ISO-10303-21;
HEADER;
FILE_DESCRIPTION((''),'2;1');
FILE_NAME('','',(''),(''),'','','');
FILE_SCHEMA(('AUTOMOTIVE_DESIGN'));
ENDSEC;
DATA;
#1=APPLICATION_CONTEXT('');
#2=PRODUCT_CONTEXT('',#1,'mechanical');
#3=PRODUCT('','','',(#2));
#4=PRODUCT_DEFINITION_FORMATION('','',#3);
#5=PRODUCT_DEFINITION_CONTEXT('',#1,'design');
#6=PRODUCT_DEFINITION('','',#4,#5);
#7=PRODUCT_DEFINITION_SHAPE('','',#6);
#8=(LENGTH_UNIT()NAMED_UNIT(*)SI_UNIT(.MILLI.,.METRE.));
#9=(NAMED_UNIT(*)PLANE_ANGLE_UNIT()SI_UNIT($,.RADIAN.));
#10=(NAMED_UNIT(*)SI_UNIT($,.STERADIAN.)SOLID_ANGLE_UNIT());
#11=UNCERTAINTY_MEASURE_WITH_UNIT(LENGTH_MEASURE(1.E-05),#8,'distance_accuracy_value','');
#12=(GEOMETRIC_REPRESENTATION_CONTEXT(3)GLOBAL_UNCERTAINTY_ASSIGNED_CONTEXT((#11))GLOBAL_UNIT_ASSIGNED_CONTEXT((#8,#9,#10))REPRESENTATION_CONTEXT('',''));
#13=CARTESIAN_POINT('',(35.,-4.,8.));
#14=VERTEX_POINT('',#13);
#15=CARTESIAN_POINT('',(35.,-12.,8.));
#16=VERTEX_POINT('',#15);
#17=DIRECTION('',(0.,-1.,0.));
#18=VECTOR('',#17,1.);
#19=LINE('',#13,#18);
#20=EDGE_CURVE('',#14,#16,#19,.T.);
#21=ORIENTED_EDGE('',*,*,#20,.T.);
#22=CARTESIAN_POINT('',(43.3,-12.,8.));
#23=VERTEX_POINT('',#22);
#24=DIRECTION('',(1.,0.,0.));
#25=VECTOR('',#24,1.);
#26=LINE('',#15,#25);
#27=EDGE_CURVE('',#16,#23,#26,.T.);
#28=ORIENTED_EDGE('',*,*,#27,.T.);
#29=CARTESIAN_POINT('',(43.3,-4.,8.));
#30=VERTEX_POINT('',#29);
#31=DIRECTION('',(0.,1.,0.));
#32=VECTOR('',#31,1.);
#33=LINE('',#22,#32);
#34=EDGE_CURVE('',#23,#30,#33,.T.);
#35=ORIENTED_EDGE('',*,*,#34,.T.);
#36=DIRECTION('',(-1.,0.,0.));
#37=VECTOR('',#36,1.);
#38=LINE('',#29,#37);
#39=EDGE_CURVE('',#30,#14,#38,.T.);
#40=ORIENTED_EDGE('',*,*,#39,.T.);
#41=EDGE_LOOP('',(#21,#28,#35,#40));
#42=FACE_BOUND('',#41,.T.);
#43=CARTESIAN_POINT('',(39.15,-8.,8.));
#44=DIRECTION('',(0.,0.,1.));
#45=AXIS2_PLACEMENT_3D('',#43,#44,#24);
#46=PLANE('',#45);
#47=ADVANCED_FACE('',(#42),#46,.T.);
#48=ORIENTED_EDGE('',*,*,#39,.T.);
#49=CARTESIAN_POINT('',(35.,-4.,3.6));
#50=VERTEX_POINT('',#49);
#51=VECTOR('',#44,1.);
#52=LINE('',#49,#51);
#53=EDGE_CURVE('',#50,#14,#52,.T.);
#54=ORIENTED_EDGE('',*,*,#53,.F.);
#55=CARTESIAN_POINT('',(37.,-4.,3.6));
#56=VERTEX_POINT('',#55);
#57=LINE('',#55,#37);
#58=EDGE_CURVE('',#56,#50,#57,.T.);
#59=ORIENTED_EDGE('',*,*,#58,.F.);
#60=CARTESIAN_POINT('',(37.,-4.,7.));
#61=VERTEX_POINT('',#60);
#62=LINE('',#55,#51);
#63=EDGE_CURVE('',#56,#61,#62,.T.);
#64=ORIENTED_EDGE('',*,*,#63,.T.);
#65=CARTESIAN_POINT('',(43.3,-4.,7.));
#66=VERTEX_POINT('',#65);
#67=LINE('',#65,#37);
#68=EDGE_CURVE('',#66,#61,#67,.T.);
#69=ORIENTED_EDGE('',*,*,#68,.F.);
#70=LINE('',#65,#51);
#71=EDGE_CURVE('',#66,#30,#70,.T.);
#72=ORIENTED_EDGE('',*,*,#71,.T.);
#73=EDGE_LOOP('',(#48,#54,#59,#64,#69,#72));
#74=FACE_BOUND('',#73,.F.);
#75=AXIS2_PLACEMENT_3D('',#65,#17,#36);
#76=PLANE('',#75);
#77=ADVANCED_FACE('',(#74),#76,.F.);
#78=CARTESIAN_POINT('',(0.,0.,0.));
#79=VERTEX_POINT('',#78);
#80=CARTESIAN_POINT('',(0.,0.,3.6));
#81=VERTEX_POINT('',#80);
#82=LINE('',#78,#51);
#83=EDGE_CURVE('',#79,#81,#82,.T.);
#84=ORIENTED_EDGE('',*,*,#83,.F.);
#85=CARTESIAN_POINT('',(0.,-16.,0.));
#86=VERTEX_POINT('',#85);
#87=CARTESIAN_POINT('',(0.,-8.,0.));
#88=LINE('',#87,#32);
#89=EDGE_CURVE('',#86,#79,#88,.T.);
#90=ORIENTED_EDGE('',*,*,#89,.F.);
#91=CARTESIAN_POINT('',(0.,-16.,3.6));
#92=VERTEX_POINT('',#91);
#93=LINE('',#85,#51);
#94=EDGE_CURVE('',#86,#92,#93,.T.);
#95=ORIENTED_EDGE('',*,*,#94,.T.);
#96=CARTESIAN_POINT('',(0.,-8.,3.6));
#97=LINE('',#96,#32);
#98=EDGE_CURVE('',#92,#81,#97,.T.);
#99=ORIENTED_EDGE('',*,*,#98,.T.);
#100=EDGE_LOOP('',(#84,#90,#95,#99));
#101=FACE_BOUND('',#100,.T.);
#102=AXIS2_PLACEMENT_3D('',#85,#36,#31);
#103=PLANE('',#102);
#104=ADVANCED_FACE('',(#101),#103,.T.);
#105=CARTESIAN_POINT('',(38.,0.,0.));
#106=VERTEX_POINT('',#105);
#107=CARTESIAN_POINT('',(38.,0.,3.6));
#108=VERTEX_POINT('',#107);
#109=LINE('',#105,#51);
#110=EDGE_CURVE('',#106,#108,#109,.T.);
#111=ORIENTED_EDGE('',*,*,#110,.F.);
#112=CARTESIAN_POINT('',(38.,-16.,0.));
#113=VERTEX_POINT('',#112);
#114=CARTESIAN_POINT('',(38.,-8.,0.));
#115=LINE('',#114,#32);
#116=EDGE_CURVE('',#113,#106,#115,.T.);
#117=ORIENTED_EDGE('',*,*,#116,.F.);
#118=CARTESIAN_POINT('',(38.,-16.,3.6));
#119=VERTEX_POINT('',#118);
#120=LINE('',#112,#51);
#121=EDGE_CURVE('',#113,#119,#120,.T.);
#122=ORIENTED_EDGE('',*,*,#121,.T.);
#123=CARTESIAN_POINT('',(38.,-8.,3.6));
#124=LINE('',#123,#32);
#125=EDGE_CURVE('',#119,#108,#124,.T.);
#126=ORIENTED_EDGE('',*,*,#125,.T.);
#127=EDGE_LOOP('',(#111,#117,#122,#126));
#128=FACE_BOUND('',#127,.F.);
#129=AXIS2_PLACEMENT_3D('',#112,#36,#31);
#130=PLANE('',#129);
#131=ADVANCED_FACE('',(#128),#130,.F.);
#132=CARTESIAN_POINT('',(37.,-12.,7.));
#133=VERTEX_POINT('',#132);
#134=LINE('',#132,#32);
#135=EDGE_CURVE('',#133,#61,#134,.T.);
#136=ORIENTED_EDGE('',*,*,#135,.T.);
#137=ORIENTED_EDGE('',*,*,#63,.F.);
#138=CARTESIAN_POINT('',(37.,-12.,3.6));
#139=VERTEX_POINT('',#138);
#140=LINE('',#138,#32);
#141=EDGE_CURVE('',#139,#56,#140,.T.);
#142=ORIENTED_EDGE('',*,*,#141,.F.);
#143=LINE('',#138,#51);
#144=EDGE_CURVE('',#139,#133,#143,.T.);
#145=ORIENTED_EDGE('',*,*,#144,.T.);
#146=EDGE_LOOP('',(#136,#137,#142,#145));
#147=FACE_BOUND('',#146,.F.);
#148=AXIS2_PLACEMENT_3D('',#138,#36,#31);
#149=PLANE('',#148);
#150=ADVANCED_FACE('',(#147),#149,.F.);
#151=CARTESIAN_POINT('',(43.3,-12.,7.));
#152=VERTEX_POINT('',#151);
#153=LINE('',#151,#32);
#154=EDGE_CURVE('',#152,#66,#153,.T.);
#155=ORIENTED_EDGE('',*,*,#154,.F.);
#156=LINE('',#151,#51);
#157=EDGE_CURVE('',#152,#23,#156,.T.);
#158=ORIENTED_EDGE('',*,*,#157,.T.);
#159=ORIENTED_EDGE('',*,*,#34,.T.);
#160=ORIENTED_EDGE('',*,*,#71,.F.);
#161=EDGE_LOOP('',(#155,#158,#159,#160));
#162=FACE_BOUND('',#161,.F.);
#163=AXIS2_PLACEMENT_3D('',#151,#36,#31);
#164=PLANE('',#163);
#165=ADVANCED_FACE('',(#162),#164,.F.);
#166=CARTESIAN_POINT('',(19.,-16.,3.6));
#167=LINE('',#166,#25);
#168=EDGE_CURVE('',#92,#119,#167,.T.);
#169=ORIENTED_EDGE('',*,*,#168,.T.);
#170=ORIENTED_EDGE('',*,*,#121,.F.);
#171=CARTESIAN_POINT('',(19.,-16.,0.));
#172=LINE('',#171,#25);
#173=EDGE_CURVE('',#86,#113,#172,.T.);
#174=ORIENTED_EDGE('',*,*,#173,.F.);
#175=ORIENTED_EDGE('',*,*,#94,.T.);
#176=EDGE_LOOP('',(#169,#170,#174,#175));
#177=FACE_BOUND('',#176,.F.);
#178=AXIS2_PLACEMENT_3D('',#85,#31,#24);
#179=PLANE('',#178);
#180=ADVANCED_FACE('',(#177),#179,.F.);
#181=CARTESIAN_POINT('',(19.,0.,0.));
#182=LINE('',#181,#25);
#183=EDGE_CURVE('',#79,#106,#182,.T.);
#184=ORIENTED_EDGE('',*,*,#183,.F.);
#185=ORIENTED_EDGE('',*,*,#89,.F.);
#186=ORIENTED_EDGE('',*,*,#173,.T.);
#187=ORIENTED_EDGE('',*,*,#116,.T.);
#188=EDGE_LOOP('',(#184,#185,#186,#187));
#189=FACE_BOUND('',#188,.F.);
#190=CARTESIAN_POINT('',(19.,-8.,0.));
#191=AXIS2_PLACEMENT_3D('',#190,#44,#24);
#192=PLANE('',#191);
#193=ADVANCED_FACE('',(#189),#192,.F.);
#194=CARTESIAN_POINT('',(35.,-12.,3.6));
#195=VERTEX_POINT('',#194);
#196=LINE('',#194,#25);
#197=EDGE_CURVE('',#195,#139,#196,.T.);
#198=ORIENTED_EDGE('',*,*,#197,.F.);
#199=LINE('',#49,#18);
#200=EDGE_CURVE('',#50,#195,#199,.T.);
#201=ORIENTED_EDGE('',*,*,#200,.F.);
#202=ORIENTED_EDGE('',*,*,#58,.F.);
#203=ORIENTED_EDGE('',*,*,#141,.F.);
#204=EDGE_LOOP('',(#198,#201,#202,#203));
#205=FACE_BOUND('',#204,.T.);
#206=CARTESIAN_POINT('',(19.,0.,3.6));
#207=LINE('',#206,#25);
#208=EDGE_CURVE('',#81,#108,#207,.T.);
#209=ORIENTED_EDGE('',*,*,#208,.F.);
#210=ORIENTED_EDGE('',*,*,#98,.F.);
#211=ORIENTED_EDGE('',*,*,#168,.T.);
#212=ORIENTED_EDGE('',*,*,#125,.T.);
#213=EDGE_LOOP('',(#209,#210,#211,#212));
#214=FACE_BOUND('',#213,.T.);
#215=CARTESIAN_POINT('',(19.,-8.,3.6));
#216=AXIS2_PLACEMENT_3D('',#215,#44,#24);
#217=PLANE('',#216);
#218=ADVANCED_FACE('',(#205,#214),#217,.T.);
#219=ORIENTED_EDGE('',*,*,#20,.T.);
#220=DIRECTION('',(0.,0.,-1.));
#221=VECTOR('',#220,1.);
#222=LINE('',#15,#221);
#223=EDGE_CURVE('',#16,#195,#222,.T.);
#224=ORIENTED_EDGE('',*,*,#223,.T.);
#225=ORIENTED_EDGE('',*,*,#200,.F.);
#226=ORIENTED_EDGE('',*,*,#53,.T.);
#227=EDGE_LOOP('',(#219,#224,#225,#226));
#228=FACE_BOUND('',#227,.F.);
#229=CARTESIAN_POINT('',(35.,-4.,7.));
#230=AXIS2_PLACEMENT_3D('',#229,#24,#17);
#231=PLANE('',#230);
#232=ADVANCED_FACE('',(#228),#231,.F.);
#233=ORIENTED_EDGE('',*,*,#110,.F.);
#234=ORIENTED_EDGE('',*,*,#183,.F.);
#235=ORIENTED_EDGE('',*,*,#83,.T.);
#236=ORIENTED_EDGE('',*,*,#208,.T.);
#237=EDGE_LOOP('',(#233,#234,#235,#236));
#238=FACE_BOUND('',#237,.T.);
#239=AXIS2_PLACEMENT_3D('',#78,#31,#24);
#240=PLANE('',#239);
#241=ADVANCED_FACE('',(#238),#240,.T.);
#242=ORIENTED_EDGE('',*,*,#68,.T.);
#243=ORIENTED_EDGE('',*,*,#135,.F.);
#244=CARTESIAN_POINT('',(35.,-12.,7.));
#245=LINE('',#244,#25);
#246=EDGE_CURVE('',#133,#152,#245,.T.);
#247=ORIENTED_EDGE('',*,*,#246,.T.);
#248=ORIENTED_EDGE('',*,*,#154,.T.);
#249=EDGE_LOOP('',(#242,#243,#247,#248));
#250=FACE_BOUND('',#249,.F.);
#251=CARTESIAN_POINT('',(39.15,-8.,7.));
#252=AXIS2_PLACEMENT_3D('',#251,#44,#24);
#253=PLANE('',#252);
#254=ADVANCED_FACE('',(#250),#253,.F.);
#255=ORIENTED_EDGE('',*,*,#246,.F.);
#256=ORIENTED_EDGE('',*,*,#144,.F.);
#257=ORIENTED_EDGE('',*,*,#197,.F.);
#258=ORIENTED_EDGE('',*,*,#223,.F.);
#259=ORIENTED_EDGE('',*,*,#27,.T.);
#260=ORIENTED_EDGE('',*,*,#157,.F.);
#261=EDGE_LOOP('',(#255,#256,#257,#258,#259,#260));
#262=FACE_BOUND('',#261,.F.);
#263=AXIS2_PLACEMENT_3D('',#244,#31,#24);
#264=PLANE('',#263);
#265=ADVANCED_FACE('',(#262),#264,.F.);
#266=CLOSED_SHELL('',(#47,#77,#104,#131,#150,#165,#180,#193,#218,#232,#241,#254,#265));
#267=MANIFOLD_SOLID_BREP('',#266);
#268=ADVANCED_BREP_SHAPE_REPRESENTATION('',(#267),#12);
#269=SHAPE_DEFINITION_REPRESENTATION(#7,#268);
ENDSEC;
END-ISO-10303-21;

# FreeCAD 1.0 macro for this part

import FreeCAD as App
import Part
import Sketcher
from FreeCAD import Vector
Q = App.Units.Quantity

doc = App.newDocument("Part")
body = doc.addObject("PartDesign::Body", "Body")

# Sketch on XY plane
sketch1 = body.newObject("Sketcher::SketchObject", "Sketch")
sketch1.AttachmentSupport = (doc.getObject("XY_Plane"), [""])
sketch1.MapMode = "FlatFace"
sketch1.addGeometry([
    Part.LineSegment(Vector(0, 0, 0), Vector(0, -16, 0)),
    Part.LineSegment(Vector(0, -16, 0), Vector(38, -16, 0)),
    Part.LineSegment(Vector(38, -16, 0), Vector(38, 0, 0)),
    Part.LineSegment(Vector(38, 0, 0), Vector(0, 0, 0)),
], False)
sketch1.addConstraint([
    Sketcher.Constraint("Coincident", 0, 2, 1, 1),
    Sketcher.Constraint("Coincident", 1, 2, 2, 1),
    Sketcher.Constraint("Coincident", 2, 2, 3, 1),
    Sketcher.Constraint("Coincident", 3, 2, 0, 1),
    Sketcher.Constraint("Vertical", 0),
    Sketcher.Constraint("Horizontal", 1),
    Sketcher.Constraint("Vertical", 2),
    Sketcher.Constraint("Horizontal", 3),
    Sketcher.Constraint("Coincident", 3, 2, -1, 1),
    Sketcher.Constraint("DistanceX", 1, 1, 1, 2, Q("38 mm")),
    Sketcher.Constraint("DistanceY", 0, 2, 0, 1, Q("16 mm")),
])
pad1 = body.newObject("PartDesign::Pad", "Pad")
pad1.Profile = sketch1
pad1.Length = 3.6

# Sketch on XY plane
sketch2 = body.newObject("Sketcher::SketchObject", "Sketch001")
sketch2.AttachmentSupport = (doc.getObject("XY_Plane"), [""])
sketch2.MapMode = "FlatFace"
sketch2.AttachmentOffset = App.Placement(Vector(0, 0, 3.6), App.Rotation())
sketch2.addGeometry([
    Part.LineSegment(Vector(37, -4, 0), Vector(35, -4, 0)),
    Part.LineSegment(Vector(35, -4, 0), Vector(35, -12, 0)),
    Part.LineSegment(Vector(35, -12, 0), Vector(37, -12, 0)),
    Part.LineSegment(Vector(37, -12, 0), Vector(37, -4, 0)),
], False)
sketch2.addConstraint([
    Sketcher.Constraint("Coincident", 0, 2, 1, 1),
    Sketcher.Constraint("Coincident", 1, 2, 2, 1),
    Sketcher.Constraint("Coincident", 2, 2, 3, 1),
    Sketcher.Constraint("Coincident", 3, 2, 0, 1),
    Sketcher.Constraint("Horizontal", 0),
    Sketcher.Constraint("Vertical", 1),
    Sketcher.Constraint("Horizontal", 2),
    Sketcher.Constraint("Vertical", 3),
    Sketcher.Constraint("DistanceX", 0, 2, 0, 1, Q("2 mm")),
    Sketcher.Constraint("DistanceY", 1, 2, 1, 1, Q("8 mm")),
    Sketcher.Constraint("DistanceX", -1, 1, 0, 2, Q("35 mm")),
    Sketcher.Constraint("DistanceY", 0, 2, -1, 1, Q("4 mm")),
])
pad2 = body.newObject("PartDesign::Pad", "Pad001")
pad2.Profile = sketch2
pad2.Length = 3.4

# Sketch on XY plane
sketch3 = body.newObject("Sketcher::SketchObject", "Sketch002")
sketch3.AttachmentSupport = (doc.getObject("XY_Plane"), [""])
sketch3.MapMode = "FlatFace"
sketch3.AttachmentOffset = App.Placement(Vector(0, 0, 7), App.Rotation())
sketch3.addGeometry([
    Part.LineSegment(Vector(43, -12, 0), Vector(43, -4, 0)),
    Part.LineSegment(Vector(43, -4, 0), Vector(35, -4, 0)),
    Part.LineSegment(Vector(35, -4, 0), Vector(35, -12, 0)),
    Part.LineSegment(Vector(35, -12, 0), Vector(43, -12, 0)),
], False)
sketch3.addConstraint([
    Sketcher.Constraint("Coincident", 0, 2, 1, 1),
    Sketcher.Constraint("Coincident", 1, 2, 2, 1),
    Sketcher.Constraint("Coincident", 2, 2, 3, 1),
    Sketcher.Constraint("Coincident", 3, 2, 0, 1),
    Sketcher.Constraint("Vertical", 0),
    Sketcher.Constraint("Horizontal", 1),
    Sketcher.Constraint("Vertical", 2),
    Sketcher.Constraint("Horizontal", 3),
    Sketcher.Constraint("DistanceY", 0, 1, 0, 2, Q("8 mm")),
    Sketcher.Constraint("DistanceX", 1, 2, 1, 1, Q("8.3 mm")),
    Sketcher.Constraint("DistanceY", 0, 2, -1, 1, Q("4 mm")),
    Sketcher.Constraint("DistanceX", -1, 1, 1, 2, Q("35 mm")),
])
pad3 = body.newObject("PartDesign::Pad", "Pad002")
pad3.Profile = sketch3
pad3.Length = 1

doc.recompute()
